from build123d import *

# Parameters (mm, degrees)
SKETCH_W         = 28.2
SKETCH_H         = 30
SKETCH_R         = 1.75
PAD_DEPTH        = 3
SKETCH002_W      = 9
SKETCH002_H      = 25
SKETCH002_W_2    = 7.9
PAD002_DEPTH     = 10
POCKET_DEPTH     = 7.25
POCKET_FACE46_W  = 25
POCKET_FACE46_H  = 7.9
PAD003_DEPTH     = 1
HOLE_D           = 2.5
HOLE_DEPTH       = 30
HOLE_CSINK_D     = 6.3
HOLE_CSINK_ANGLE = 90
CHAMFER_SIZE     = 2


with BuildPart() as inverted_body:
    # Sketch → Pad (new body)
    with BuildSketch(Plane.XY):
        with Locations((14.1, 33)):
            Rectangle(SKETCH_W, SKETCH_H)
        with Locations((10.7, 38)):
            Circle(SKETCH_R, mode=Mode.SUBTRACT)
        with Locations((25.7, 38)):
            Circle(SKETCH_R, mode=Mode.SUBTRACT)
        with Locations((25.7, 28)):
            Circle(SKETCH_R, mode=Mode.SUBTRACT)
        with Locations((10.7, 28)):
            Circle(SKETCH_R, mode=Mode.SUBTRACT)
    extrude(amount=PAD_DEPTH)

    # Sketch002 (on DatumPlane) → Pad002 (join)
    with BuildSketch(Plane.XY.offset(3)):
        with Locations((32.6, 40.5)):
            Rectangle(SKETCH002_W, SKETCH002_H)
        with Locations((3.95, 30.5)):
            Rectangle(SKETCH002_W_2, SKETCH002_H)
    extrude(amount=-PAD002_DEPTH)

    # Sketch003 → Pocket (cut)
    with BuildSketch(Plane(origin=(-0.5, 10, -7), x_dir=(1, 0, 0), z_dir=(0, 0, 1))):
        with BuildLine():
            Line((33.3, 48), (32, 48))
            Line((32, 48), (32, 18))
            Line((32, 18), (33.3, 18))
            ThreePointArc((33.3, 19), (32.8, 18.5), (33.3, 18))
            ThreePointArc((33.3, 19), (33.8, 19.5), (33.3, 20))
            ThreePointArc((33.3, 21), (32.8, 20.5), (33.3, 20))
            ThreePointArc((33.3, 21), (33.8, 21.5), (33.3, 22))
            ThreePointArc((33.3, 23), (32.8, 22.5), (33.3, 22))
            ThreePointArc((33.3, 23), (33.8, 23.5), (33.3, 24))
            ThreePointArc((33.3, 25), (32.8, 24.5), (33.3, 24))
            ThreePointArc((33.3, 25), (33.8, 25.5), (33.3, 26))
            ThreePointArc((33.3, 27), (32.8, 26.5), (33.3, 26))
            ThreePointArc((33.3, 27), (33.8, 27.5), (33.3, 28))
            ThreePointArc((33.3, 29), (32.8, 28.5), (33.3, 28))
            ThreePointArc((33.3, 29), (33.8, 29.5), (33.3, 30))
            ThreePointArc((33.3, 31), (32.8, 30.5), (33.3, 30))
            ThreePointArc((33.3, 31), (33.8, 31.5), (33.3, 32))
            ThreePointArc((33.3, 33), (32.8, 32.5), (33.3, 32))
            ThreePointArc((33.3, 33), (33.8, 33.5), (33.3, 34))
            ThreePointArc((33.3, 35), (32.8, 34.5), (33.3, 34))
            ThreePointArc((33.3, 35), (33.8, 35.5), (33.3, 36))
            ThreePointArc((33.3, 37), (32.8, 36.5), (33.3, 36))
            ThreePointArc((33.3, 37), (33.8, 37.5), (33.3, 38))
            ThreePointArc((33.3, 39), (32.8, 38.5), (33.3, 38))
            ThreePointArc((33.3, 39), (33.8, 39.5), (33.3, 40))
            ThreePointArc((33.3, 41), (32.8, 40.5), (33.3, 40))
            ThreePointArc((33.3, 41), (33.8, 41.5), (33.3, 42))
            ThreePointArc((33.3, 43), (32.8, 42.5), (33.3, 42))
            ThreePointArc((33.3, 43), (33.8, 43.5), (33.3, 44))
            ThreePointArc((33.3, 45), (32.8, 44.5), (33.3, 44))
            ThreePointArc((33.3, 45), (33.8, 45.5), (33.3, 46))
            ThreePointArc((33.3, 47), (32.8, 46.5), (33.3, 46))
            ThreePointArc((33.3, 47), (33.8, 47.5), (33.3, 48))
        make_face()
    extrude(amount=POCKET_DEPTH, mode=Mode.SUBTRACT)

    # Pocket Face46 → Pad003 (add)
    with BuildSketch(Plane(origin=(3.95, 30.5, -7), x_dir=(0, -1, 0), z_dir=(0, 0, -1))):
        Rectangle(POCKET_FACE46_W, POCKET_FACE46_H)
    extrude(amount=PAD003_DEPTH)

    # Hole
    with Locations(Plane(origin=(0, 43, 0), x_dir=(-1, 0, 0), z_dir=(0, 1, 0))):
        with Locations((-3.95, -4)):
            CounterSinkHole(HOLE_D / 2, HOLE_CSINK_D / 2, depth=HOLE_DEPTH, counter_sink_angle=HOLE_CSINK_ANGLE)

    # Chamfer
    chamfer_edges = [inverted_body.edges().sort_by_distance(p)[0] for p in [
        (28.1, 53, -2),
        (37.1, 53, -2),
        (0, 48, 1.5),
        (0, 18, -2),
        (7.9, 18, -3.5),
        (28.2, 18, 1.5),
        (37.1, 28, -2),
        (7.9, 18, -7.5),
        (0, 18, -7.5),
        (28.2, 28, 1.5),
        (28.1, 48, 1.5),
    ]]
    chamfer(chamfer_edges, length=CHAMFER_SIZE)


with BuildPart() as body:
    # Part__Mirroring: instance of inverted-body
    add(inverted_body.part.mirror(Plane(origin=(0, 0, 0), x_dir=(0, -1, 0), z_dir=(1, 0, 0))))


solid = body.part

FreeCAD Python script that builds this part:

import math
import FreeCAD as App
import Part
import Sketcher

V = App.Vector
Q = App.Units.Quantity


def edges_at(feature, points):
    """Names of the edges that pass closest to the given points."""
    edges = feature.Shape.Edges
    near = lambda p: min(range(len(edges)), key=lambda i: edges[i].distToShape(Part.Vertex(*p))[0])
    return sorted({f"Edge{near(p) + 1}" for p in points})


def add_polygon(sketch, points):
    """Adds a closed chain of lines whose ends are joined by coincident constraints."""
    first, n = sketch.GeometryCount, len(points)
    for a, b in zip(points, points[1:] + points[:1]):
        sketch.addGeometry(Part.LineSegment(App.Vector(*a, 0), App.Vector(*b, 0)), False)
    for i in range(n):
        sketch.addConstraint(Sketcher.Constraint("Coincident", first + i, 2, first + (i + 1) % n, 1))

doc = App.newDocument("Part")
body = doc.addObject("PartDesign::Body", "Body")

# Sketch on XY plane
sketch1 = body.newObject("Sketcher::SketchObject", "Sketch")
sketch1.AttachmentSupport = (doc.getObject("XY_Plane"), [""])
sketch1.MapMode = "FlatFace"
add_polygon(sketch1, [(0, 48), (0, 18), (28.2, 18), (28.2, 48)])  # lines 0-3
sketch1.addGeometry(Part.Circle(V(10.7, 28, 0), V(0, 0, 1), 1.8), False)  # 4
sketch1.addGeometry(Part.Circle(V(25.7, 28, 0), V(0, 0, 1), 1.8), False)  # 5
sketch1.addGeometry(Part.Circle(V(10.7, 38, 0), V(0, 0, 1), 1.8), False)  # 6
sketch1.addGeometry(Part.Circle(V(25.7, 38, 0), V(0, 0, 1), 1.8), False)  # 7
sketch1.addConstraint([
    Sketcher.Constraint("Vertical", 0),
    Sketcher.Constraint("Horizontal", 1),
    Sketcher.Constraint("Vertical", 2),
    Sketcher.Constraint("Horizontal", 3),
    Sketcher.Constraint("Equal", 4, 5),
    Sketcher.Constraint("Equal", 5, 6),
    Sketcher.Constraint("Equal", 6, 7),
    Sketcher.Constraint("PointOnObject", 0, 2, -2),
    Sketcher.Constraint("Horizontal", 4, 3, 5, 3),
    Sketcher.Constraint("Horizontal", 6, 3, 7, 3),
    Sketcher.Constraint("Vertical", 4, 3, 6, 3),
    Sketcher.Constraint("Vertical", 5, 3, 7, 3),
    Sketcher.Constraint("Diameter", 4, Q("3.5 mm")),
    Sketcher.Constraint("DistanceY", 0, 2, 0, 1, Q("30 mm")),
    Sketcher.Constraint("DistanceX", 1, 1, 1, 2, Q("28.2 mm")),
    Sketcher.Constraint("DistanceY", -1, 1, 4, 3, Q("28 mm")),
    Sketcher.Constraint("DistanceY", -1, 1, 6, 3, Q("38 mm")),
    Sketcher.Constraint("DistanceY", -1, 1, 0, 2, Q("18 mm")),
    Sketcher.Constraint("DistanceX", 4, 3, 5, 3, Q("15 mm")),
    Sketcher.Constraint("DistanceX", -1, 1, 4, 3, Q("10.7 mm")),
])
pad1 = body.newObject("PartDesign::Pad", "Pad")
pad1.Profile = sketch1
pad1.Length = 3

# Sketch on XY plane
sketch2 = body.newObject("Sketcher::SketchObject", "Sketch001")
sketch2.AttachmentSupport = (doc.getObject("XY_Plane"), [""])
sketch2.MapMode = "FlatFace"
sketch2.AttachmentOffset = App.Placement(V(0, 0, 3), App.Rotation())
add_polygon(sketch2, [(28, 53), (28, 28), (37, 28), (37, 53)])  # lines 0-3
add_polygon(sketch2, [(0, 43), (0, 18), (8, 18), (8, 43)])  # lines 4-7
sketch2.addConstraint([
    Sketcher.Constraint("Vertical", 0),
    Sketcher.Constraint("Horizontal", 1),
    Sketcher.Constraint("Vertical", 2),
    Sketcher.Constraint("Horizontal", 3),
    Sketcher.Constraint("Vertical", 4),
    Sketcher.Constraint("Horizontal", 5),
    Sketcher.Constraint("Vertical", 6),
    Sketcher.Constraint("Horizontal", 7),
    Sketcher.Constraint("PointOnObject", 4, 2, -2),
    Sketcher.Constraint("Equal", 2, 4),
    Sketcher.Constraint("DistanceX", 1, 1, 1, 2, Q("9 mm")),
    Sketcher.Constraint("DistanceY", 0, 2, 0, 1, Q("25 mm")),
    Sketcher.Constraint("DistanceX", 5, 1, 5, 2, Q("7.9 mm")),
    Sketcher.Constraint("DistanceY", -1, 1, 0, 2, Q("28 mm")),
    Sketcher.Constraint("DistanceY", -1, 1, 4, 2, Q("18 mm")),
    Sketcher.Constraint("DistanceX", -1, 1, 0, 2, Q("28.1 mm")),
])
pad2 = body.newObject("PartDesign::Pad", "Pad001")
pad2.Profile = sketch2
pad2.Length = 10
pad2.Reversed = True

# Sketch on XY plane
sketch3 = body.newObject("Sketcher::SketchObject", "Sketch002")
sketch3.AttachmentSupport = (doc.getObject("XY_Plane"), [""])
sketch3.MapMode = "FlatFace"
sketch3.AttachmentOffset = App.Placement(V(0, 0, -7), App.Rotation())
sketch3.addGeometry([
    Part.LineSegment(V(32.8, 58, 0), V(31.5, 58, 0)),  # 0
    Part.LineSegment(V(31.5, 58, 0), V(31.5, 28, 0)),  # 1
    Part.LineSegment(V(31.5, 28, 0), V(32.8, 28, 0)),  # 2
    Part.ArcOfCircle(Part.Circle(V(32.8, 28.5, 0), V(0, 0, 1), 0.5), math.radians(90), math.radians(270)),  # 3
    Part.ArcOfCircle(Part.Circle(V(32.8, 29.5, 0), V(0, 0, 1), 0.5), math.radians(-90), math.radians(90)),  # 4
    Part.ArcOfCircle(Part.Circle(V(32.8, 30.5, 0), V(0, 0, 1), 0.5), math.radians(90), math.radians(270)),  # 5
    Part.ArcOfCircle(Part.Circle(V(32.8, 31.5, 0), V(0, 0, 1), 0.5), math.radians(-90), math.radians(90)),  # 6
    Part.ArcOfCircle(Part.Circle(V(32.8, 32.5, 0), V(0, 0, 1), 0.5), math.radians(90), math.radians(270)),  # 7
    Part.ArcOfCircle(Part.Circle(V(32.8, 33.5, 0), V(0, 0, 1), 0.5), math.radians(-90), math.radians(90)),  # 8
    Part.ArcOfCircle(Part.Circle(V(32.8, 34.5, 0), V(0, 0, 1), 0.5), math.radians(90), math.radians(270)),  # 9
    Part.ArcOfCircle(Part.Circle(V(32.8, 35.5, 0), V(0, 0, 1), 0.5), math.radians(-90), math.radians(90)),  # 10
    Part.ArcOfCircle(Part.Circle(V(32.8, 36.5, 0), V(0, 0, 1), 0.5), math.radians(90), math.radians(270)),  # 11
    Part.ArcOfCircle(Part.Circle(V(32.8, 37.5, 0), V(0, 0, 1), 0.5), math.radians(-90), math.radians(90)),  # 12
    Part.ArcOfCircle(Part.Circle(V(32.8, 38.5, 0), V(0, 0, 1), 0.5), math.radians(90), math.radians(270)),  # 13
    Part.ArcOfCircle(Part.Circle(V(32.8, 39.5, 0), V(0, 0, 1), 0.5), math.radians(-90), math.radians(90)),  # 14
    Part.ArcOfCircle(Part.Circle(V(32.8, 40.5, 0), V(0, 0, 1), 0.5), math.radians(90), math.radians(270)),  # 15
    Part.ArcOfCircle(Part.Circle(V(32.8, 41.5, 0), V(0, 0, 1), 0.5), math.radians(-90), math.radians(90)),  # 16
    Part.ArcOfCircle(Part.Circle(V(32.8, 42.5, 0), V(0, 0, 1), 0.5), math.radians(90), math.radians(270)),  # 17
    Part.ArcOfCircle(Part.Circle(V(32.8, 43.5, 0), V(0, 0, 1), 0.5), math.radians(-90), math.radians(90)),  # 18
    Part.ArcOfCircle(Part.Circle(V(32.8, 44.5, 0), V(0, 0, 1), 0.5), math.radians(90), math.radians(270)),  # 19
    Part.ArcOfCircle(Part.Circle(V(32.8, 45.5, 0), V(0, 0, 1), 0.5), math.radians(-90), math.radians(90)),  # 20
    Part.ArcOfCircle(Part.Circle(V(32.8, 46.5, 0), V(0, 0, 1), 0.5), math.radians(90), math.radians(270)),  # 21
    Part.ArcOfCircle(Part.Circle(V(32.8, 47.5, 0), V(0, 0, 1), 0.5), math.radians(-90), math.radians(90)),  # 22
    Part.ArcOfCircle(Part.Circle(V(32.8, 48.5, 0), V(0, 0, 1), 0.5), math.radians(90), math.radians(270)),  # 23
    Part.ArcOfCircle(Part.Circle(V(32.8, 49.5, 0), V(0, 0, 1), 0.5), math.radians(-90), math.radians(90)),  # 24
    Part.ArcOfCircle(Part.Circle(V(32.8, 50.5, 0), V(0, 0, 1), 0.5), math.radians(90), math.radians(270)),  # 25
    Part.ArcOfCircle(Part.Circle(V(32.8, 51.5, 0), V(0, 0, 1), 0.5), math.radians(-90), math.radians(90)),  # 26
    Part.ArcOfCircle(Part.Circle(V(32.8, 52.5, 0), V(0, 0, 1), 0.5), math.radians(90), math.radians(270)),  # 27
    Part.ArcOfCircle(Part.Circle(V(32.8, 53.5, 0), V(0, 0, 1), 0.5), math.radians(-90), math.radians(90)),  # 28
    Part.ArcOfCircle(Part.Circle(V(32.8, 54.5, 0), V(0, 0, 1), 0.5), math.radians(90), math.radians(270)),  # 29
    Part.ArcOfCircle(Part.Circle(V(32.8, 55.5, 0), V(0, 0, 1), 0.5), math.radians(-90), math.radians(90)),  # 30
    Part.ArcOfCircle(Part.Circle(V(32.8, 56.5, 0), V(0, 0, 1), 0.5), math.radians(90), math.radians(270)),  # 31
    Part.ArcOfCircle(Part.Circle(V(32.8, 57.5, 0), V(0, 0, 1), 0.5), math.radians(-90), math.radians(90)),  # 32
], False)
sketch3.addConstraint([
    Sketcher.Constraint("Coincident", 0, 2, 1, 1),
    Sketcher.Constraint("Coincident", 1, 2, 2, 1),
    Sketcher.Constraint("Tangent", 2, 2, 3, 2),
    Sketcher.Constraint("Tangent", 3, 1, 4, 1),
    Sketcher.Constraint("Tangent", 4, 2, 5, 2),
    Sketcher.Constraint("Tangent", 5, 1, 6, 1),
    Sketcher.Constraint("Tangent", 6, 2, 7, 2),
    Sketcher.Constraint("Tangent", 7, 1, 8, 1),
    Sketcher.Constraint("Tangent", 8, 2, 9, 2),
    Sketcher.Constraint("Tangent", 9, 1, 10, 1),
    Sketcher.Constraint("Tangent", 10, 2, 11, 2),
    Sketcher.Constraint("Tangent", 11, 1, 12, 1),
    Sketcher.Constraint("Tangent", 12, 2, 13, 2),
    Sketcher.Constraint("Tangent", 13, 1, 14, 1),
    Sketcher.Constraint("Tangent", 14, 2, 15, 2),
    Sketcher.Constraint("Tangent", 15, 1, 16, 1),
    Sketcher.Constraint("Tangent", 16, 2, 17, 2),
    Sketcher.Constraint("Tangent", 17, 1, 18, 1),
    Sketcher.Constraint("Tangent", 18, 2, 19, 2),
    Sketcher.Constraint("Tangent", 19, 1, 20, 1),
    Sketcher.Constraint("Tangent", 20, 2, 21, 2),
    Sketcher.Constraint("Tangent", 21, 1, 22, 1),
    Sketcher.Constraint("Tangent", 22, 2, 23, 2),
    Sketcher.Constraint("Tangent", 23, 1, 24, 1),
    Sketcher.Constraint("Tangent", 24, 2, 25, 2),
    Sketcher.Constraint("Tangent", 25, 1, 26, 1),
    Sketcher.Constraint("Tangent", 26, 2, 27, 2),
    Sketcher.Constraint("Tangent", 27, 1, 28, 1),
    Sketcher.Constraint("Tangent", 28, 2, 29, 2),
    Sketcher.Constraint("Tangent", 29, 1, 30, 1),
    Sketcher.Constraint("Tangent", 30, 2, 31, 2),
    Sketcher.Constraint("Tangent", 31, 1, 32, 1),
    Sketcher.Constraint("Tangent", 32, 2, 0, 1),
    Sketcher.Constraint("Horizontal", 0),
    Sketcher.Constraint("Vertical", 1),
    Sketcher.Constraint("Horizontal", 2),
    Sketcher.Constraint("Equal", 3, 4),
    Sketcher.Constraint("Equal", 4, 5),
    Sketcher.Constraint("Equal", 5, 6),
    Sketcher.Constraint("Equal", 6, 7),
    Sketcher.Constraint("Equal", 7, 8),
    Sketcher.Constraint("Equal", 8, 9),
    Sketcher.Constraint("Equal", 9, 10),
    Sketcher.Constraint("Equal", 10, 11),
    Sketcher.Constraint("Equal", 11, 12),
    Sketcher.Constraint("Equal", 12, 13),
    Sketcher.Constraint("Equal", 13, 14),
    Sketcher.Constraint("Equal", 14, 15),
    Sketcher.Constraint("Equal", 15, 16),
    Sketcher.Constraint("Equal", 16, 17),
    Sketcher.Constraint("Equal", 17, 18),
    Sketcher.Constraint("Equal", 18, 19),
    Sketcher.Constraint("Equal", 19, 20),
    Sketcher.Constraint("Equal", 20, 21),
    Sketcher.Constraint("Equal", 21, 22),
    Sketcher.Constraint("Equal", 22, 23),
    Sketcher.Constraint("Equal", 23, 24),
    Sketcher.Constraint("Equal", 24, 25),
    Sketcher.Constraint("Equal", 25, 26),
    Sketcher.Constraint("Equal", 26, 27),
    Sketcher.Constraint("Equal", 27, 28),
    Sketcher.Constraint("Equal", 28, 29),
    Sketcher.Constraint("Equal", 29, 30),
    Sketcher.Constraint("Equal", 30, 31),
    Sketcher.Constraint("Equal", 31, 32),
    Sketcher.Constraint("Vertical", 3, 3, 4, 3),
    Sketcher.Constraint("Vertical", 4, 3, 5, 3),
    Sketcher.Constraint("Vertical", 5, 3, 6, 3),
    Sketcher.Constraint("Vertical", 6, 3, 7, 3),
    Sketcher.Constraint("Vertical", 7, 3, 8, 3),
    Sketcher.Constraint("Vertical", 8, 3, 9, 3),
    Sketcher.Constraint("Vertical", 9, 3, 10, 3),
    Sketcher.Constraint("Vertical", 10, 3, 11, 3),
    Sketcher.Constraint("Vertical", 11, 3, 12, 3),
    Sketcher.Constraint("Vertical", 12, 3, 13, 3),
    Sketcher.Constraint("Vertical", 13, 3, 14, 3),
    Sketcher.Constraint("Vertical", 14, 3, 15, 3),
    Sketcher.Constraint("Vertical", 15, 3, 16, 3),
    Sketcher.Constraint("Vertical", 16, 3, 17, 3),
    Sketcher.Constraint("Vertical", 17, 3, 18, 3),
    Sketcher.Constraint("Vertical", 18, 3, 19, 3),
    Sketcher.Constraint("Vertical", 19, 3, 20, 3),
    Sketcher.Constraint("Vertical", 20, 3, 21, 3),
    Sketcher.Constraint("Vertical", 21, 3, 22, 3),
    Sketcher.Constraint("Vertical", 22, 3, 23, 3),
    Sketcher.Constraint("Vertical", 23, 3, 24, 3),
    Sketcher.Constraint("Vertical", 24, 3, 25, 3),
    Sketcher.Constraint("Vertical", 25, 3, 26, 3),
    Sketcher.Constraint("Vertical", 26, 3, 27, 3),
    Sketcher.Constraint("Vertical", 27, 3, 28, 3),
    Sketcher.Constraint("Vertical", 28, 3, 29, 3),
    Sketcher.Constraint("Vertical", 29, 3, 30, 3),
    Sketcher.Constraint("Vertical", 30, 3, 31, 3),
    Sketcher.Constraint("Vertical", 31, 3, 32, 3),
    Sketcher.Constraint("Radius", 3, Q("0.5 mm")),
    Sketcher.Constraint("DistanceX", 0, 2, 0, 1, Q("1.3 mm")),
    Sketcher.Constraint("DistanceY", -1, 1, 0, 2, Q("58 mm")),
    Sketcher.Constraint("DistanceX", -1, 1, 3, 3, Q("32.8 mm")),
])
pocket1 = body.newObject("PartDesign::Pocket", "Pocket")
pocket1.Profile = sketch3
pocket1.Length = 7.25
pocket1.Reversed = True

# Sketch on XY plane
sketch4 = body.newObject("Sketcher::SketchObject", "Sketch003")
sketch4.AttachmentSupport = (doc.getObject("XY_Plane"), [""])
sketch4.MapMode = "FlatFace"
sketch4.AttachmentOffset = App.Placement(V(0, 0, -7), App.Rotation())
add_polygon(sketch4, [(0, 43), (8, 43), (8, 18), (0, 18)])  # lines 0-3
sketch4.addConstraint([
    Sketcher.Constraint("Horizontal", 0),
    Sketcher.Constraint("Vertical", 1),
    Sketcher.Constraint("Horizontal", 2),
    Sketcher.Constraint("Vertical", 3),
    Sketcher.Constraint("PointOnObject", 2, 2, -2),
    Sketcher.Constraint("DistanceY", 1, 2, 1, 1, Q("25 mm")),
    Sketcher.Constraint("DistanceX", 0, 1, 0, 2, Q("7.9 mm")),
    Sketcher.Constraint("DistanceY", -1, 1, 0, 2, Q("43 mm")),
])
pad3 = body.newObject("PartDesign::Pad", "Pad002")
pad3.Profile = sketch4
pad3.Length = 1
pad3.Reversed = True

# Sketch on XZ plane
sketch5 = body.newObject("Sketcher::SketchObject", "Sketch004")
sketch5.AttachmentSupport = (doc.getObject("XZ_Plane"), [""])
sketch5.MapMode = "FlatFace"
sketch5.AttachmentOffset = App.Placement(V(0, 0, -43), App.Rotation())
sketch5.addGeometry(Part.Circle(V(4, -4, 0), V(0, 0, 1), 1.2), False)
sketch5.addConstraint([
    Sketcher.Constraint("Diameter", 0, Q("2.5 mm")),
    Sketcher.Constraint("DistanceY", 0, 3, -1, 1, Q("4 mm")),
    Sketcher.Constraint("DistanceX", -1, 1, 0, 3, Q("3.95 mm")),
])
doc.recompute()
hole = body.newObject("PartDesign::Hole", "Hole")
hole.Profile = sketch5
hole.ThreadType = "None"
hole.Diameter = 2.5
hole.DepthType = "Dimension"
hole.Depth = 30
hole.DrillPoint = "Flat"
hole.HoleCutType = "Countersink"
hole.HoleCutDiameter = 6.3
hole.HoleCutCountersinkAngle = 90
hole.Reversed = True
doc.recompute()

chamfer = body.newObject("PartDesign::Chamfer", "Chamfer")
chamfer.Base = (hole, edges_at(hole, [
    (28.1, 53, -2),
    (37.1, 53, -2),
    (0, 48, 1.5),
    (0, 18, -2.5),
    (7.9, 18, -4),
    (28.2, 18, 1.5),
    (37.1, 28, -2),
    (7.9, 18, -4),
    (0, 18, -2.5),
    (28.2, 28, 1.5),
    (28.1, 48, 1.5),
]))
chamfer.Size = 2
body2 = doc.addObject("PartDesign::Body", "Body001")
doc.recompute()

mirroring = doc.addObject("Part::Mirroring", "Mirroring")
mirroring.Source = body
mirroring.Base = V(0, 0, 0)
mirroring.Normal = V(1, 0, 0)
body2.BaseFeature = mirroring
doc.recompute()
body.Visibility = False
mirroring.Visibility = False

doc.recompute()
